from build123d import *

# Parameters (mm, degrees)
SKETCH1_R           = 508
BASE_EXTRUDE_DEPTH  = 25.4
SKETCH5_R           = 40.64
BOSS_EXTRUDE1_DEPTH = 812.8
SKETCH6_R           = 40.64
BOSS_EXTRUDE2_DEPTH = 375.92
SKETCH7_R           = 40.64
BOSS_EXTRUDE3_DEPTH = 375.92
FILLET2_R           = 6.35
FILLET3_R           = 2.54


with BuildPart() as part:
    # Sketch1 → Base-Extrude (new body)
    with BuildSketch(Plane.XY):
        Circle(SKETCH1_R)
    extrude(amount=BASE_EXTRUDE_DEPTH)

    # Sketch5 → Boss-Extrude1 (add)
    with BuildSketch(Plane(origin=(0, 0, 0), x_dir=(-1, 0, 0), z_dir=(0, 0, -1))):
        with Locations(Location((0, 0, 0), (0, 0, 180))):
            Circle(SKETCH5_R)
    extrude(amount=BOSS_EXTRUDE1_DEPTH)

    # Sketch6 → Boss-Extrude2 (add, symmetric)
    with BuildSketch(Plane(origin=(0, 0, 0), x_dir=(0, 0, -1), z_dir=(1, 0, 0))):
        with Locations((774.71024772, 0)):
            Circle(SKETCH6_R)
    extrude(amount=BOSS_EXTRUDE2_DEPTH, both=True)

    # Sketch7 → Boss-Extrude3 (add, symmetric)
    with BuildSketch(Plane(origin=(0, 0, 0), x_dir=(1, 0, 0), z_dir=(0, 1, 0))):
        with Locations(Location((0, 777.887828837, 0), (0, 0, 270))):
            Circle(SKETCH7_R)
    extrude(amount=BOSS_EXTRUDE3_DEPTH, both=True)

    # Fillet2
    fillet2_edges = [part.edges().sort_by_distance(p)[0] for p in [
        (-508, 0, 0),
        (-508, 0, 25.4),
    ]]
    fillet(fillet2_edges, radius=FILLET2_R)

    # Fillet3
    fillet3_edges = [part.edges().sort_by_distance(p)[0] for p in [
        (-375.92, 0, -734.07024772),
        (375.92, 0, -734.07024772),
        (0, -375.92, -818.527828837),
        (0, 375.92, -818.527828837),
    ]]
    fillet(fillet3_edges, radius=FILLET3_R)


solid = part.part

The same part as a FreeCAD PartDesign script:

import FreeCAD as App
import Part
import Sketcher
from FreeCAD import Vector
Q = App.Units.Quantity


def edges_at(feature, points):
    """Names of the edges that pass closest to the given points."""
    edges = feature.Shape.Edges
    near = lambda p: min(range(len(edges)), key=lambda i: edges[i].distToShape(Part.Vertex(*p))[0])
    return sorted({f"Edge{near(p) + 1}" for p in points})

doc = App.newDocument("Part")
body = doc.addObject("PartDesign::Body", "Body")

sketch1 = body.newObject("Sketcher::SketchObject", "Sketch")
sketch1.AttachmentSupport = (doc.getObject("XY_Plane"), [""])
sketch1.MapMode = "FlatFace"
sketch1.addGeometry(Part.Circle(Vector(0, 0, 0), Vector(0, 0, 1), 508), False)
sketch1.addConstraint([
    Sketcher.Constraint("Coincident", 0, 3, -1, 1),
    Sketcher.Constraint("Diameter", 0, Q("40 in")),
])
pad1 = body.newObject("PartDesign::Pad", "Pad")
pad1.Profile = sketch1
pad1.Length = Q("1 in")

sketch2 = body.newObject("Sketcher::SketchObject", "Sketch001")
sketch2.AttachmentSupport = (doc.getObject("XY_Plane"), [""])
sketch2.MapMode = "FlatFace"
sketch2.addGeometry(Part.Circle(Vector(0, 0, 0), Vector(0, 0, 1), 41), False)
sketch2.addConstraint([
    Sketcher.Constraint("Coincident", 0, 3, -1, 1),
    Sketcher.Constraint("Diameter", 0, Q("3.2 in")),
])
pad2 = body.newObject("PartDesign::Pad", "Pad001")
pad2.Profile = sketch2
pad2.Length = Q("32 in")
pad2.Reversed = True

sketch3 = body.newObject("Sketcher::SketchObject", "Sketch002")
sketch3.AttachmentSupport = (doc.getObject("YZ_Plane"), [""])
sketch3.MapMode = "FlatFace"
sketch3.addGeometry(Part.Circle(Vector(0, -775, 0), Vector(0, 0, 1), 41), False)
sketch3.addConstraint([
    Sketcher.Constraint("PointOnObject", 0, 3, -2),
    Sketcher.Constraint("Diameter", 0, Q("3.2 in")),
    Sketcher.Constraint("DistanceY", 0, 3, -1, 1, 774.710248),
])
pad3 = body.newObject("PartDesign::Pad", "Pad002")
pad3.Profile = sketch3
pad3.Length = Q("29.6 in")
pad3.Midplane = True

sketch4 = body.newObject("Sketcher::SketchObject", "Sketch003")
sketch4.AttachmentSupport = (doc.getObject("XZ_Plane"), [""])
sketch4.MapMode = "FlatFace"
sketch4.addGeometry(Part.Circle(Vector(0, -778, 0), Vector(0, 0, 1), 41), False)
sketch4.addConstraint([
    Sketcher.Constraint("PointOnObject", 0, 3, -2),
    Sketcher.Constraint("Diameter", 0, Q("3.2 in")),
    Sketcher.Constraint("DistanceY", 0, 3, -1, 1, 777.887829),
])
pad4 = body.newObject("PartDesign::Pad", "Pad003")
pad4.Profile = sketch4
pad4.Length = Q("29.6 in")
pad4.Midplane = True
doc.recompute()

fillet = body.newObject("PartDesign::Fillet", "Fillet")
fillet.Base = (pad4, edges_at(pad4, [(-508, 0, 0), (-508, 0, 25.4)]))
fillet.Radius = Q("0.25 in")
doc.recompute()

fillet2 = body.newObject("PartDesign::Fillet", "Fillet001")
fillet2.Base = (fillet, edges_at(fillet, [
    (-375.92, 0, -734.07),
    (375.92, 0, -734.07),
    (0, -375.92, -818.528),
    (0, 375.92, -818.528),
]))
fillet2.Radius = Q("0.1 in")

doc.recompute()
